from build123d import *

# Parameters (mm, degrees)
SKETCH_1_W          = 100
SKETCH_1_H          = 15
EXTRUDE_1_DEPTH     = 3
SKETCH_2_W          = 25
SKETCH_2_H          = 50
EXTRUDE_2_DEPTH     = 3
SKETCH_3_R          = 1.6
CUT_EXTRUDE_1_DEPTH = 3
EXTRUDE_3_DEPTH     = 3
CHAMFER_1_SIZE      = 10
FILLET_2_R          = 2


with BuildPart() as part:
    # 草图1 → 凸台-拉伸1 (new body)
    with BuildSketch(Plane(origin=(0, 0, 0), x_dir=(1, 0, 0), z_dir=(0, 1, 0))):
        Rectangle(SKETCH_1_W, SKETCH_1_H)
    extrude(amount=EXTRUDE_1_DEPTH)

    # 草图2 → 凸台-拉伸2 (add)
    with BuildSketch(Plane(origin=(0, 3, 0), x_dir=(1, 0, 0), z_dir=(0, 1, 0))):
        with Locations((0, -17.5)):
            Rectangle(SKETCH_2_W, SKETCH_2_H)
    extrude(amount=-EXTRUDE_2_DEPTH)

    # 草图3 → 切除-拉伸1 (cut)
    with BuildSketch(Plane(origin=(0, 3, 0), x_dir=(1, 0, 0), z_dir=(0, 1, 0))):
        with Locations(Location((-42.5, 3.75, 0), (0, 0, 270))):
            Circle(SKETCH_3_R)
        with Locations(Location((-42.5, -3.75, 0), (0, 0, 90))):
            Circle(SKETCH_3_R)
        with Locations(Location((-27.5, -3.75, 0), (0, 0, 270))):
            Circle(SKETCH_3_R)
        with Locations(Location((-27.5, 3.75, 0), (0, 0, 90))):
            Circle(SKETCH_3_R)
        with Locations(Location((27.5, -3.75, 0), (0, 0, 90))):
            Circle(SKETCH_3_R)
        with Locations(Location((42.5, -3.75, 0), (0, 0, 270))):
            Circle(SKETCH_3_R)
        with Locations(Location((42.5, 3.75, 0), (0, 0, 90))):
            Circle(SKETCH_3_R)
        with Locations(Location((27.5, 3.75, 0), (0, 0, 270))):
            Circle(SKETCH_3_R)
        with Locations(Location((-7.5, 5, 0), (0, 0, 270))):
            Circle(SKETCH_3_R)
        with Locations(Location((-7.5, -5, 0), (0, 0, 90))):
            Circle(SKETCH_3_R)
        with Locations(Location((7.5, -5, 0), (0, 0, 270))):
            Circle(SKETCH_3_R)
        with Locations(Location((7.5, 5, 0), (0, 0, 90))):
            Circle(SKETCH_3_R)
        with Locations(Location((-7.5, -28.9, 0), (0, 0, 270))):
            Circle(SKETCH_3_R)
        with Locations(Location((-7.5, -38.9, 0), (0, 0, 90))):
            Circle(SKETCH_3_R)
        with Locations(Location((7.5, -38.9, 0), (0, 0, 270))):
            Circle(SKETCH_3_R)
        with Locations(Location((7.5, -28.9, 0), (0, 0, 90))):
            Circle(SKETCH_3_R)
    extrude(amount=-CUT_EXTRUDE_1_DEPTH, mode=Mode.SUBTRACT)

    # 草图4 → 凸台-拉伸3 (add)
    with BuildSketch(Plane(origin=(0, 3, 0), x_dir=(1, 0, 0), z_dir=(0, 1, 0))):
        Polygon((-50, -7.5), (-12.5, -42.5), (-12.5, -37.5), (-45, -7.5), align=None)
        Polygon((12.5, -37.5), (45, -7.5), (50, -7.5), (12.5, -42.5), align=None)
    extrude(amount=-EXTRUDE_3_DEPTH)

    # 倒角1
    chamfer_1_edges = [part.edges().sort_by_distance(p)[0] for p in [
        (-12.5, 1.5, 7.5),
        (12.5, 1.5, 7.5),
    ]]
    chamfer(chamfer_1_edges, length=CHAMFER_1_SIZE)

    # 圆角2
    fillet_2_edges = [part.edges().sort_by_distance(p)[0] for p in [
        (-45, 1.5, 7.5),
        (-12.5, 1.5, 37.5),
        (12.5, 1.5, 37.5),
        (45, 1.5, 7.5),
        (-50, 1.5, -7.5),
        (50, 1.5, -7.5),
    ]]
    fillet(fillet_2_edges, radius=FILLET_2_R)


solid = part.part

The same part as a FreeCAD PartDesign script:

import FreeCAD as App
import Part
import Sketcher
Q = App.Units.Quantity


def edges_at(feature, points):
    """Names of the edges that pass closest to the given points."""
    edges = feature.Shape.Edges
    near = lambda p: min(range(len(edges)), key=lambda i: edges[i].distToShape(Part.Vertex(*p))[0])
    return sorted({f"Edge{near(p) + 1}" for p in points})


def add_polygon(sketch, points):
    """Adds a closed chain of lines whose ends are joined by coincident constraints."""
    first, n = sketch.GeometryCount, len(points)
    for a, b in zip(points, points[1:] + points[:1]):
        sketch.addGeometry(Part.LineSegment(App.Vector(*a, 0), App.Vector(*b, 0)), False)
    for i in range(n):
        sketch.addConstraint(Sketcher.Constraint("Coincident", first + i, 2, first + (i + 1) % n, 1))

doc = App.newDocument("Part")
body = doc.addObject("PartDesign::Body", "Body")

sketch1 = body.newObject("Sketcher::SketchObject", "Sketch")
sketch1.AttachmentSupport = (doc.getObject("XZ_Plane"), [""])
sketch1.MapMode = "FlatFace"
add_polygon(sketch1, [(-50, -8), (-50, 8), (50, 8), (50, -8)])
sketch1.addConstraint([
    Sketcher.Constraint("Vertical", 0),
    Sketcher.Constraint("Horizontal", 1),
    Sketcher.Constraint("Vertical", 2),
    Sketcher.Constraint("Horizontal", 3),
    Sketcher.Constraint("Symmetric", 0, 2, 2, 2, -1, 1),
    Sketcher.Constraint("DistanceX", 1, 1, 1, 2, Q("100 mm")),
    Sketcher.Constraint("DistanceY", 0, 1, 0, 2, Q("15 mm")),
])
pad1 = body.newObject("PartDesign::Pad", "Pad")
pad1.Profile = sketch1
pad1.Length = 3
pad1.Reversed = True

sketch2 = body.newObject("Sketcher::SketchObject", "Sketch001")
sketch2.AttachmentSupport = (doc.getObject("XZ_Plane"), [""])
sketch2.MapMode = "FlatFace"
sketch2.AttachmentOffset = App.Placement(App.Vector(0, 0, -3), App.Rotation())
add_polygon(sketch2, [(-12, -8), (-12, 42), (12, 42), (12, -8)])
sketch2.addConstraint([
    Sketcher.Constraint("Vertical", 0),
    Sketcher.Constraint("Horizontal", 1),
    Sketcher.Constraint("Vertical", 2),
    Sketcher.Constraint("Horizontal", 3),
    Sketcher.Constraint("DistanceX", 1, 1, 1, 2, Q("25 mm")),
    Sketcher.Constraint("DistanceY", 0, 1, 0, 2, Q("50 mm")),
    Sketcher.Constraint("DistanceX", 0, 2, -1, 1, Q("12.5 mm")),
    Sketcher.Constraint("DistanceY", -1, 1, 0, 2, Q("42.5 mm")),
])
pad2 = body.newObject("PartDesign::Pad", "Pad001")
pad2.Profile = sketch2
pad2.Length = 3

sketch3 = body.newObject("Sketcher::SketchObject", "Sketch002")
sketch3.AttachmentSupport = (doc.getObject("XZ_Plane"), [""])
sketch3.MapMode = "FlatFace"
sketch3.AttachmentOffset = App.Placement(App.Vector(0, 0, -3), App.Rotation())
sketch3.addGeometry([
    Part.Circle(App.Vector(-42.5, -3.8, 0), App.Vector(0, 0, 1), 1.6),
    Part.Circle(App.Vector(-42.5, 3.8, 0), App.Vector(0, 0, 1), 1.6),
    Part.Circle(App.Vector(-27.5, 3.8, 0), App.Vector(0, 0, 1), 1.6),
    Part.Circle(App.Vector(-27.5, -3.8, 0), App.Vector(0, 0, 1), 1.6),
    Part.Circle(App.Vector(27.5, 3.8, 0), App.Vector(0, 0, 1), 1.6),
    Part.Circle(App.Vector(42.5, 3.8, 0), App.Vector(0, 0, 1), 1.6),
    Part.Circle(App.Vector(42.5, -3.8, 0), App.Vector(0, 0, 1), 1.6),
    Part.Circle(App.Vector(27.5, -3.8, 0), App.Vector(0, 0, 1), 1.6),
    Part.Circle(App.Vector(-7.5, -5, 0), App.Vector(0, 0, 1), 1.6),
    Part.Circle(App.Vector(-7.5, 5, 0), App.Vector(0, 0, 1), 1.6),
    Part.Circle(App.Vector(7.5, 5, 0), App.Vector(0, 0, 1), 1.6),
    Part.Circle(App.Vector(7.5, -5, 0), App.Vector(0, 0, 1), 1.6),
    Part.Circle(App.Vector(-7.5, 28.9, 0), App.Vector(0, 0, 1), 1.6),
    Part.Circle(App.Vector(-7.5, 38.9, 0), App.Vector(0, 0, 1), 1.6),
    Part.Circle(App.Vector(7.5, 38.9, 0), App.Vector(0, 0, 1), 1.6),
    Part.Circle(App.Vector(7.5, 28.9, 0), App.Vector(0, 0, 1), 1.6),
], False)
sketch3.addConstraint([
    Sketcher.Constraint("Equal", 0, 1),
    Sketcher.Constraint("Equal", 1, 2),
    Sketcher.Constraint("Equal", 2, 3),
    Sketcher.Constraint("Equal", 3, 4),
    Sketcher.Constraint("Equal", 4, 5),
    Sketcher.Constraint("Equal", 5, 6),
    Sketcher.Constraint("Equal", 6, 7),
    Sketcher.Constraint("Equal", 7, 8),
    Sketcher.Constraint("Equal", 8, 9),
    Sketcher.Constraint("Equal", 9, 10),
    Sketcher.Constraint("Equal", 10, 11),
    Sketcher.Constraint("Equal", 11, 12),
    Sketcher.Constraint("Equal", 12, 13),
    Sketcher.Constraint("Equal", 13, 14),
    Sketcher.Constraint("Equal", 14, 15),
    Sketcher.Constraint("Symmetric", 3, 3, 4, 3, -1, 1),
    Sketcher.Constraint("Symmetric", 0, 3, 5, 3, -1, 1),
    Sketcher.Constraint("Symmetric", 1, 3, 6, 3, -1, 1),
    Sketcher.Constraint("Symmetric", 2, 3, 7, 3, -1, 1),
    Sketcher.Constraint("Symmetric", 8, 3, 10, 3, -1, 1),
    Sketcher.Constraint("Symmetric", 9, 3, 11, 3, -1, 1),
    Sketcher.Constraint("Symmetric", 2, 3, 4, 3, -2),
    Sketcher.Constraint("Symmetric", 1, 3, 5, 3, -2),
    Sketcher.Constraint("Symmetric", 9, 3, 10, 3, -2),
    Sketcher.Constraint("Symmetric", 13, 3, 14, 3, -2),
    Sketcher.Constraint("Symmetric", 12, 3, 15, 3, -2),
    Sketcher.Constraint("Horizontal", 1, 3, 2, 3),
    Sketcher.Constraint("Vertical", 9, 3, 12, 3),
    Sketcher.Constraint("Vertical", 12, 3, 13, 3),
    Sketcher.Constraint("Diameter", 0, Q("3.2 mm")),
    Sketcher.Constraint("DistanceY", 8, 3, -1, 1, Q("5 mm")),
    Sketcher.Constraint("DistanceX", 1, 3, 2, 3, Q("15 mm")),
    Sketcher.Constraint("DistanceX", 2, 3, 4, 3, Q("55 mm")),
    Sketcher.Constraint("DistanceX", 3, 3, 8, 3, Q("20 mm")),
    Sketcher.Constraint("DistanceY", 12, 3, 13, 3, Q("10 mm")),
    Sketcher.Constraint("DistanceY", -1, 1, 12, 3, Q("28.9 mm")),
    Sketcher.Constraint("DistanceY", 0, 3, 1, 3, Q("7.5 mm")),
])
pocket1 = body.newObject("PartDesign::Pocket", "Pocket")
pocket1.Profile = sketch3
pocket1.Length = 3
pocket1.Reversed = True

sketch4 = body.newObject("Sketcher::SketchObject", "Sketch003")
sketch4.AttachmentSupport = (doc.getObject("XZ_Plane"), [""])
sketch4.MapMode = "FlatFace"
sketch4.AttachmentOffset = App.Placement(App.Vector(0, 0, -3), App.Rotation())
add_polygon(sketch4, [(-50, 8), (-12, 42), (-12, 38), (-45, 8)])
add_polygon(sketch4, [(45, 8), (12, 38), (12, 42), (50, 8)])
sketch4.addConstraint([
    Sketcher.Constraint("Vertical", 1),
    Sketcher.Constraint("Horizontal", 3),
    Sketcher.Constraint("Vertical", 5),
    Sketcher.Constraint("Horizontal", 7),
    Sketcher.Constraint("Symmetric", 1, 2, 4, 2, -2),
    Sketcher.Constraint("Symmetric", 3, 2, 6, 2, -2),
    Sketcher.Constraint("Horizontal", 0, 2, 5, 2),
    Sketcher.Constraint("Equal", 3, 7),
    Sketcher.Constraint("Equal", 7, 1),
    Sketcher.Constraint("DistanceX", 3, 2, 3, 1, Q("5 mm")),
    Sketcher.Constraint("DistanceX", 2, 2, -1, 1, Q("45 mm")),
    Sketcher.Constraint("DistanceY", 2, 2, 1, 2, Q("30 mm")),
    Sketcher.Constraint("DistanceX", 1, 2, 4, 2, Q("25 mm")),
    Sketcher.Constraint("DistanceY", -1, 1, 0, 2, Q("42.5 mm")),
])
pad3 = body.newObject("PartDesign::Pad", "Pad002")
pad3.Profile = sketch4
pad3.Length = 3
doc.recompute()

chamfer = body.newObject("PartDesign::Chamfer", "Chamfer")
chamfer.Base = (pad3, edges_at(pad3, [(-12.5, 1.5, 7.5), (12.5, 1.5, 7.5)]))
chamfer.Size = 10
doc.recompute()

fillet = body.newObject("PartDesign::Fillet", "Fillet")
fillet.Base = (chamfer, edges_at(chamfer, [
    (-45, 1.5, 7.5),
    (-12.5, 1.5, 37.5),
    (12.5, 1.5, 37.5),
    (45, 1.5, 7.5),
    (-50, 1.5, -7.5),
    (50, 1.5, -7.5),
]))
fillet.Radius = 2

doc.recompute()
